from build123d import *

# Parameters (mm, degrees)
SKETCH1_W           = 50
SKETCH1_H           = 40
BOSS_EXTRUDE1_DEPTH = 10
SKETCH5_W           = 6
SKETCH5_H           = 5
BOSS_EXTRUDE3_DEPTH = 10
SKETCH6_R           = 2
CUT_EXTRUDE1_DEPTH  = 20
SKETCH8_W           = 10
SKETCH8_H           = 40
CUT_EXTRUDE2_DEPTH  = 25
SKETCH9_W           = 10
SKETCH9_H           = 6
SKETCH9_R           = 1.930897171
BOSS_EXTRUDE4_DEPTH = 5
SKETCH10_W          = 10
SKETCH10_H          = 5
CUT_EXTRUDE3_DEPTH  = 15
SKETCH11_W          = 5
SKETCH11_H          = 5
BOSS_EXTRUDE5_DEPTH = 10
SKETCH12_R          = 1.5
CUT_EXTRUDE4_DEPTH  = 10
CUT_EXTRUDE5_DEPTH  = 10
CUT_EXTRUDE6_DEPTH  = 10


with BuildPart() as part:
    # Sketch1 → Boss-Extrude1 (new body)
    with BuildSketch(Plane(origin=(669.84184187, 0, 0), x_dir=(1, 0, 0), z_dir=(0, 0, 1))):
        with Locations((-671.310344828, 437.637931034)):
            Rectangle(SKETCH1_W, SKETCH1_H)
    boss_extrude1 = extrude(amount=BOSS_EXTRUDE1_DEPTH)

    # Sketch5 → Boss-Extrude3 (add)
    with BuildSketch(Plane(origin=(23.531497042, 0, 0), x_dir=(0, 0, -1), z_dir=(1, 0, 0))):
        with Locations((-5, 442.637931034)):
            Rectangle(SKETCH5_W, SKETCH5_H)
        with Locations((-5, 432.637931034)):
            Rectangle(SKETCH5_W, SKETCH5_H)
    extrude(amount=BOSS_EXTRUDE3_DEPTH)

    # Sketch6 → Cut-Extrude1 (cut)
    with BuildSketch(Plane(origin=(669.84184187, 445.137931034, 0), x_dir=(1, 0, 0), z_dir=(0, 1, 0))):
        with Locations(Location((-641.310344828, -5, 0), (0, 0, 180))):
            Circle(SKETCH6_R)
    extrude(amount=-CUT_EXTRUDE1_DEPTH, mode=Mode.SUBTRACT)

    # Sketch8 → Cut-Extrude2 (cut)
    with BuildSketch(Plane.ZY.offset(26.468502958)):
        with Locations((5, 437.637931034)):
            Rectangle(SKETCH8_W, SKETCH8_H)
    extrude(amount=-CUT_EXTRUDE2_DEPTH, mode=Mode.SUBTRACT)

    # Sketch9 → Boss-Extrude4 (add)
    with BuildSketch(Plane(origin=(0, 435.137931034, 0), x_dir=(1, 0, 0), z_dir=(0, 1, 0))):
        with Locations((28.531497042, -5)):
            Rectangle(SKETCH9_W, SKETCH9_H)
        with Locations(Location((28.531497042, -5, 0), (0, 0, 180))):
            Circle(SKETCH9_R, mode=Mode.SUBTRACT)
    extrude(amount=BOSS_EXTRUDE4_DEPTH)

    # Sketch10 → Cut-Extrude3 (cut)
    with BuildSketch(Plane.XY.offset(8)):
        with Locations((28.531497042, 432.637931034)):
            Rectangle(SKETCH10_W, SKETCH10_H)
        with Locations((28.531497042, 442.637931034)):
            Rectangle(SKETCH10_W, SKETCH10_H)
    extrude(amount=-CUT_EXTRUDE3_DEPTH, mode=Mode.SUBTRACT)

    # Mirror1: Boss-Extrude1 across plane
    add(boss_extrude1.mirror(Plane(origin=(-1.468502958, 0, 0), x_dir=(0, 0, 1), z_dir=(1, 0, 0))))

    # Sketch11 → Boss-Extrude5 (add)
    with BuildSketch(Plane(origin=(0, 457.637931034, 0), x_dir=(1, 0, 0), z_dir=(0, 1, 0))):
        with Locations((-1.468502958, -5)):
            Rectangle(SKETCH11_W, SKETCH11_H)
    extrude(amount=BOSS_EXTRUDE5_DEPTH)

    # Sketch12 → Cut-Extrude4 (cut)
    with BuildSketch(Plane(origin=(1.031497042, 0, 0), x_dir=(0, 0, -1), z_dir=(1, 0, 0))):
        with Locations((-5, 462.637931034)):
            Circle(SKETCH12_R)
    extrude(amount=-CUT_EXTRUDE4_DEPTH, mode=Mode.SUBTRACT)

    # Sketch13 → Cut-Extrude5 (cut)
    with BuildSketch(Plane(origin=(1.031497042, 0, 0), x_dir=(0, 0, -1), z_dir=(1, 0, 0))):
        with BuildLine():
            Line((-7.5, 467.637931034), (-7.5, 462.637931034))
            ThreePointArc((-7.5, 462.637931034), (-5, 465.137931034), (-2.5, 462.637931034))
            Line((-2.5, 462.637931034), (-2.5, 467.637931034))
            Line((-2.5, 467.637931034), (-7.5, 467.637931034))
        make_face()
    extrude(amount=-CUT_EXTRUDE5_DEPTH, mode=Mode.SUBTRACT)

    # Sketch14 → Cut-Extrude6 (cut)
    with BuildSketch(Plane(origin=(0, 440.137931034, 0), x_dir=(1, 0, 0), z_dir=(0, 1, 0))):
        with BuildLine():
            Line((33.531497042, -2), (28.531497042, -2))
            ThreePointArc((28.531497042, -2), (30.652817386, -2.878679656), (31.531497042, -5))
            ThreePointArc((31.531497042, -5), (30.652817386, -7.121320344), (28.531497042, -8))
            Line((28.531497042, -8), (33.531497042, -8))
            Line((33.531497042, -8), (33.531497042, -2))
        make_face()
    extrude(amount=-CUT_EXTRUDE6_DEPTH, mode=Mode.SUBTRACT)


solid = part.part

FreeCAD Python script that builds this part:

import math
import FreeCAD as App
import Part
import Sketcher

V = App.Vector

doc = App.newDocument("Part")
body = doc.addObject("PartDesign::Body", "Body")

# Sketch on XY plane
sketch1 = body.newObject("Sketcher::SketchObject", "Sketch")
sketch1.AttachmentSupport = (doc.getObject("XY_Plane"), [""])
sketch1.MapMode = "FlatFace"
sketch1.addGeometry(Part.LineSegment(V(-26, 458, 0), V(-26, 418, 0)), False)
sketch1.addGeometry(Part.LineSegment(V(-26, 418, 0), V(24, 418, 0)), False)
sketch1.addGeometry(Part.LineSegment(V(24, 418, 0), V(24, 458, 0)), False)
sketch1.addGeometry(Part.LineSegment(V(24, 458, 0), V(-26, 458, 0)), False)
sketch1.addConstraint(Sketcher.Constraint("Coincident", 0, 2, 1, 1))
sketch1.addConstraint(Sketcher.Constraint("Coincident", 1, 2, 2, 1))
sketch1.addConstraint(Sketcher.Constraint("Coincident", 2, 2, 3, 1))
sketch1.addConstraint(Sketcher.Constraint("Coincident", 3, 2, 0, 1))
sketch1.addConstraint(Sketcher.Constraint("Vertical", 0))
sketch1.addConstraint(Sketcher.Constraint("Horizontal", 1))
sketch1.addConstraint(Sketcher.Constraint("Vertical", 2))
sketch1.addConstraint(Sketcher.Constraint("Horizontal", 3))
sketch1.addConstraint(Sketcher.Constraint("DistanceX", 1, 1, 1, 2, 50.0))
sketch1.addConstraint(Sketcher.Constraint("DistanceY", 0, 2, 0, 1, 40.0))
sketch1.addConstraint(Sketcher.Constraint("DistanceY", -1, 1, 0, 2, 417.637931))
sketch1.addConstraint(Sketcher.Constraint("DistanceX", 0, 2, -1, 1, 26.468503))
pad1 = body.newObject("PartDesign::Pad", "Pad")
pad1.Profile = sketch1
pad1.Length = 10

# Sketch on YZ plane
sketch2 = body.newObject("Sketcher::SketchObject", "Sketch001")
sketch2.AttachmentSupport = (doc.getObject("YZ_Plane"), [""])
sketch2.MapMode = "FlatFace"
sketch2.AttachmentOffset = App.Placement(V(0, 0, 23.531497), App.Rotation())
sketch2.addGeometry(Part.LineSegment(V(445, 8, 0), V(440, 8, 0)), False)
sketch2.addGeometry(Part.LineSegment(V(440, 8, 0), V(440, 2, 0)), False)
sketch2.addGeometry(Part.LineSegment(V(440, 2, 0), V(445, 2, 0)), False)
sketch2.addGeometry(Part.LineSegment(V(445, 2, 0), V(445, 8, 0)), False)
sketch2.addGeometry(Part.LineSegment(V(435, 8, 0), V(430, 8, 0)), False)
sketch2.addGeometry(Part.LineSegment(V(430, 8, 0), V(430, 2, 0)), False)
sketch2.addGeometry(Part.LineSegment(V(430, 2, 0), V(435, 2, 0)), False)
sketch2.addGeometry(Part.LineSegment(V(435, 2, 0), V(435, 8, 0)), False)
sketch2.addConstraint(Sketcher.Constraint("Coincident", 0, 2, 1, 1))
sketch2.addConstraint(Sketcher.Constraint("Coincident", 1, 2, 2, 1))
sketch2.addConstraint(Sketcher.Constraint("Coincident", 2, 2, 3, 1))
sketch2.addConstraint(Sketcher.Constraint("Coincident", 3, 2, 0, 1))
sketch2.addConstraint(Sketcher.Constraint("Coincident", 4, 2, 5, 1))
sketch2.addConstraint(Sketcher.Constraint("Coincident", 5, 2, 6, 1))
sketch2.addConstraint(Sketcher.Constraint("Coincident", 6, 2, 7, 1))
sketch2.addConstraint(Sketcher.Constraint("Coincident", 7, 2, 4, 1))
sketch2.addConstraint(Sketcher.Constraint("Horizontal", 0))
sketch2.addConstraint(Sketcher.Constraint("Vertical", 1))
sketch2.addConstraint(Sketcher.Constraint("Horizontal", 2))
sketch2.addConstraint(Sketcher.Constraint("Vertical", 3))
sketch2.addConstraint(Sketcher.Constraint("Horizontal", 4))
sketch2.addConstraint(Sketcher.Constraint("Vertical", 5))
sketch2.addConstraint(Sketcher.Constraint("Horizontal", 6))
sketch2.addConstraint(Sketcher.Constraint("Vertical", 7))
sketch2.addConstraint(Sketcher.Constraint("Horizontal", 3, 2, 4, 2))
sketch2.addConstraint(Sketcher.Constraint("Horizontal", 2, 2, 5, 2))
sketch2.addConstraint(Sketcher.Constraint("Equal", 2, 4))
sketch2.addConstraint(Sketcher.Constraint("DistanceX", 0, 2, 0, 1, 5.0))
sketch2.addConstraint(Sketcher.Constraint("DistanceY", 1, 2, 1, 1, 6.0))
sketch2.addConstraint(Sketcher.Constraint("DistanceY", -1, 1, 0, 2, 8.0))
sketch2.addConstraint(Sketcher.Constraint("DistanceX", 4, 2, 0, 2, 10.0))
sketch2.addConstraint(Sketcher.Constraint("DistanceX", -1, 1, 0, 2, 440.137931))
pad2 = body.newObject("PartDesign::Pad", "Pad001")
pad2.Profile = sketch2
pad2.Length = 10

# Sketch on XZ plane
sketch3 = body.newObject("Sketcher::SketchObject", "Sketch002")
sketch3.AttachmentSupport = (doc.getObject("XZ_Plane"), [""])
sketch3.MapMode = "FlatFace"
sketch3.AttachmentOffset = App.Placement(V(0, 0, -445.137931), App.Rotation())
sketch3.addGeometry(Part.Circle(V(28.5, 5, 0), V(0, 0, 1), 2), False)
sketch3.addConstraint(Sketcher.Constraint("Diameter", 0, 4.0))
sketch3.addConstraint(Sketcher.Constraint("DistanceY", -1, 1, 0, 3, 5.0))
sketch3.addConstraint(Sketcher.Constraint("DistanceX", -1, 1, 0, 3, 28.531497))
pocket1 = body.newObject("PartDesign::Pocket", "Pocket")
pocket1.Profile = sketch3
pocket1.Length = 20
pocket1.Reversed = True

# Sketch on YZ plane
sketch4 = body.newObject("Sketcher::SketchObject", "Sketch003")
sketch4.AttachmentSupport = (doc.getObject("YZ_Plane"), [""])
sketch4.MapMode = "FlatFace"
sketch4.AttachmentOffset = App.Placement(V(0, 0, -26.468503), App.Rotation())
sketch4.addGeometry(Part.LineSegment(V(458, 0, 0), V(418, 0, 0)), False)
sketch4.addGeometry(Part.LineSegment(V(418, 0, 0), V(418, 10, 0)), False)
sketch4.addGeometry(Part.LineSegment(V(418, 10, 0), V(458, 10, 0)), False)
sketch4.addGeometry(Part.LineSegment(V(458, 10, 0), V(458, 0, 0)), False)
sketch4.addConstraint(Sketcher.Constraint("Coincident", 0, 2, 1, 1))
sketch4.addConstraint(Sketcher.Constraint("Coincident", 1, 2, 2, 1))
sketch4.addConstraint(Sketcher.Constraint("Coincident", 2, 2, 3, 1))
sketch4.addConstraint(Sketcher.Constraint("Coincident", 3, 2, 0, 1))
sketch4.addConstraint(Sketcher.Constraint("Horizontal", 0))
sketch4.addConstraint(Sketcher.Constraint("Vertical", 1))
sketch4.addConstraint(Sketcher.Constraint("Horizontal", 2))
sketch4.addConstraint(Sketcher.Constraint("Vertical", 3))
sketch4.addConstraint(Sketcher.Constraint("PointOnObject", 0, 2, -1))
sketch4.addConstraint(Sketcher.Constraint("DistanceX", 0, 2, 0, 1, 40.0))
sketch4.addConstraint(Sketcher.Constraint("DistanceY", 1, 1, 1, 2, 10.0))
sketch4.addConstraint(Sketcher.Constraint("DistanceX", -1, 1, 0, 2, 417.637931))
pocket2 = body.newObject("PartDesign::Pocket", "Pocket001")
pocket2.Profile = sketch4
pocket2.Length = 25
pocket2.Reversed = True

# Sketch on XZ plane
sketch5 = body.newObject("Sketcher::SketchObject", "Sketch004")
sketch5.AttachmentSupport = (doc.getObject("XZ_Plane"), [""])
sketch5.MapMode = "FlatFace"
sketch5.AttachmentOffset = App.Placement(V(0, 0, -435.137931), App.Rotation())
sketch5.addGeometry(Part.LineSegment(V(23.5, 2, 0), V(23.5, 8, 0)), False)
sketch5.addGeometry(Part.LineSegment(V(23.5, 8, 0), V(33.5, 8, 0)), False)
sketch5.addGeometry(Part.LineSegment(V(33.5, 8, 0), V(33.5, 2, 0)), False)
sketch5.addGeometry(Part.LineSegment(V(33.5, 2, 0), V(23.5, 2, 0)), False)
sketch5.addGeometry(Part.Circle(V(28.5, 5, 0), V(0, 0, 1), 1.9), False)
sketch5.addConstraint(Sketcher.Constraint("Coincident", 0, 2, 1, 1))
sketch5.addConstraint(Sketcher.Constraint("Coincident", 1, 2, 2, 1))
sketch5.addConstraint(Sketcher.Constraint("Coincident", 2, 2, 3, 1))
sketch5.addConstraint(Sketcher.Constraint("Coincident", 3, 2, 0, 1))
sketch5.addConstraint(Sketcher.Constraint("Vertical", 0))
sketch5.addConstraint(Sketcher.Constraint("Horizontal", 1))
sketch5.addConstraint(Sketcher.Constraint("Vertical", 2))
sketch5.addConstraint(Sketcher.Constraint("Horizontal", 3))
sketch5.addConstraint(Sketcher.Constraint("DistanceX", 1, 1, 1, 2, 10.0))
sketch5.addConstraint(Sketcher.Constraint("DistanceY", 0, 1, 0, 2, 6.0))
sketch5.addConstraint(Sketcher.Constraint("DistanceY", -1, 1, 4, 3, 5.0))
sketch5.addConstraint(Sketcher.Constraint("DistanceY", -1, 1, 0, 2, 8.0))
sketch5.addConstraint(Sketcher.Constraint("DistanceX", 0, 2, 4, 3, 5.0))
sketch5.addConstraint(Sketcher.Constraint("Diameter", 4, 3.861794))
sketch5.addConstraint(Sketcher.Constraint("DistanceX", -1, 1, 4, 3, 28.531497))
pad3 = body.newObject("PartDesign::Pad", "Pad002")
pad3.Profile = sketch5
pad3.Length = 5
pad3.Reversed = True

# Sketch on XY plane
sketch6 = body.newObject("Sketcher::SketchObject", "Sketch005")
sketch6.AttachmentSupport = (doc.getObject("XY_Plane"), [""])
sketch6.MapMode = "FlatFace"
sketch6.AttachmentOffset = App.Placement(V(0, 0, 8), App.Rotation())
sketch6.addGeometry(Part.LineSegment(V(24, 435, 0), V(24, 430, 0)), False)
sketch6.addGeometry(Part.LineSegment(V(24, 430, 0), V(34, 430, 0)), False)
sketch6.addGeometry(Part.LineSegment(V(34, 430, 0), V(34, 435, 0)), False)
sketch6.addGeometry(Part.LineSegment(V(34, 435, 0), V(24, 435, 0)), False)
sketch6.addGeometry(Part.LineSegment(V(24, 445, 0), V(24, 440, 0)), False)
sketch6.addGeometry(Part.LineSegment(V(24, 440, 0), V(34, 440, 0)), False)
sketch6.addGeometry(Part.LineSegment(V(34, 440, 0), V(34, 445, 0)), False)
sketch6.addGeometry(Part.LineSegment(V(34, 445, 0), V(24, 445, 0)), False)
sketch6.addConstraint(Sketcher.Constraint("Coincident", 0, 2, 1, 1))
sketch6.addConstraint(Sketcher.Constraint("Coincident", 1, 2, 2, 1))
sketch6.addConstraint(Sketcher.Constraint("Coincident", 2, 2, 3, 1))
sketch6.addConstraint(Sketcher.Constraint("Coincident", 3, 2, 0, 1))
sketch6.addConstraint(Sketcher.Constraint("Coincident", 4, 2, 5, 1))
sketch6.addConstraint(Sketcher.Constraint("Coincident", 5, 2, 6, 1))
sketch6.addConstraint(Sketcher.Constraint("Coincident", 6, 2, 7, 1))
sketch6.addConstraint(Sketcher.Constraint("Coincident", 7, 2, 4, 1))
sketch6.addConstraint(Sketcher.Constraint("Vertical", 0))
sketch6.addConstraint(Sketcher.Constraint("Horizontal", 1))
sketch6.addConstraint(Sketcher.Constraint("Vertical", 2))
sketch6.addConstraint(Sketcher.Constraint("Horizontal", 3))
sketch6.addConstraint(Sketcher.Constraint("Vertical", 4))
sketch6.addConstraint(Sketcher.Constraint("Horizontal", 5))
sketch6.addConstraint(Sketcher.Constraint("Vertical", 6))
sketch6.addConstraint(Sketcher.Constraint("Horizontal", 7))
sketch6.addConstraint(Sketcher.Constraint("Vertical", 3, 2, 4, 2))
sketch6.addConstraint(Sketcher.Constraint("Vertical", 2, 2, 5, 2))
sketch6.addConstraint(Sketcher.Constraint("Equal", 2, 4))
sketch6.addConstraint(Sketcher.Constraint("DistanceX", 1, 1, 1, 2, 10.0))
sketch6.addConstraint(Sketcher.Constraint("DistanceY", 0, 2, 0, 1, 5.0))
sketch6.addConstraint(Sketcher.Constraint("DistanceY", 3, 2, 4, 2, 5.0))
sketch6.addConstraint(Sketcher.Constraint("DistanceY", -1, 1, 0, 2, 430.137931))
sketch6.addConstraint(Sketcher.Constraint("DistanceX", -1, 1, 0, 2, 23.531497))
pocket3 = body.newObject("PartDesign::Pocket", "Pocket002")
pocket3.Profile = sketch6
pocket3.Length = 15
doc.recompute()

datumplane = body.newObject("PartDesign::Plane", "DatumPlane")
datumplane.AttachmentSupport = (doc.getObject("YZ_Plane"), [""])
datumplane.MapMode = "FlatFace"
datumplane.AttachmentOffset = App.Placement(V(0, 0, -1.468503), App.Rotation())
mirrored = body.newObject("PartDesign::Mirrored", "Mirrored")
mirrored.Originals = [pad1]
mirrored.MirrorPlane = (datumplane, [""])
body.Tip = mirrored

# Sketch on XZ plane
sketch7 = body.newObject("Sketcher::SketchObject", "Sketch006")
sketch7.AttachmentSupport = (doc.getObject("XZ_Plane"), [""])
sketch7.MapMode = "FlatFace"
sketch7.AttachmentOffset = App.Placement(V(0, 0, -457.637931), App.Rotation())
sketch7.addGeometry(Part.LineSegment(V(-4, 2, 0), V(-4, 8, 0)), False)
sketch7.addGeometry(Part.LineSegment(V(-4, 8, 0), V(1, 8, 0)), False)
sketch7.addGeometry(Part.LineSegment(V(1, 8, 0), V(1, 2, 0)), False)
sketch7.addGeometry(Part.LineSegment(V(1, 2, 0), V(-4, 2, 0)), False)
sketch7.addConstraint(Sketcher.Constraint("Coincident", 0, 2, 1, 1))
sketch7.addConstraint(Sketcher.Constraint("Coincident", 1, 2, 2, 1))
sketch7.addConstraint(Sketcher.Constraint("Coincident", 2, 2, 3, 1))
sketch7.addConstraint(Sketcher.Constraint("Coincident", 3, 2, 0, 1))
sketch7.addConstraint(Sketcher.Constraint("Vertical", 0))
sketch7.addConstraint(Sketcher.Constraint("Horizontal", 1))
sketch7.addConstraint(Sketcher.Constraint("Vertical", 2))
sketch7.addConstraint(Sketcher.Constraint("Horizontal", 3))
sketch7.addConstraint(Sketcher.Constraint("Equal", 3, 0))
sketch7.addConstraint(Sketcher.Constraint("DistanceX", 1, 1, 1, 2, 5.0))
sketch7.addConstraint(Sketcher.Constraint("DistanceY", -1, 1, 0, 2, 7.5))
sketch7.addConstraint(Sketcher.Constraint("DistanceX", 0, 2, -1, 1, 3.968503))
pad4 = body.newObject("PartDesign::Pad", "Pad003")
pad4.Profile = sketch7
pad4.Length = 10
pad4.Reversed = True

# Sketch on YZ plane
sketch8 = body.newObject("Sketcher::SketchObject", "Sketch007")
sketch8.AttachmentSupport = (doc.getObject("YZ_Plane"), [""])
sketch8.MapMode = "FlatFace"
sketch8.AttachmentOffset = App.Placement(V(0, 0, 1.031497), App.Rotation())
sketch8.addGeometry(Part.Circle(V(462.6, 5, 0), V(0, 0, 1), 1.5), False)
sketch8.addConstraint(Sketcher.Constraint("Diameter", 0, 3.0))
sketch8.addConstraint(Sketcher.Constraint("DistanceY", -1, 1, 0, 3, 5.0))
sketch8.addConstraint(Sketcher.Constraint("DistanceX", -1, 1, 0, 3, 462.637931))
pocket4 = body.newObject("PartDesign::Pocket", "Pocket003")
pocket4.Profile = sketch8
pocket4.Length = 10

# Sketch on YZ plane
sketch9 = body.newObject("Sketcher::SketchObject", "Sketch008")
sketch9.AttachmentSupport = (doc.getObject("YZ_Plane"), [""])
sketch9.MapMode = "FlatFace"
sketch9.AttachmentOffset = App.Placement(V(0, 0, 1.031497), App.Rotation())
sketch9.addGeometry(Part.LineSegment(V(467.6, 7.5, 0), V(462.6, 7.5, 0)), False)
sketch9.addGeometry(Part.ArcOfCircle(Part.Circle(V(462.6, 5, 0), V(0, 0, 1), 2.5), math.radians(-90), math.radians(90)), False)
sketch9.addGeometry(Part.LineSegment(V(462.6, 2.5, 0), V(467.6, 2.5, 0)), False)
sketch9.addGeometry(Part.LineSegment(V(467.6, 2.5, 0), V(467.6, 7.5, 0)), False)
sketch9.addConstraint(Sketcher.Constraint("Tangent", 0, 2, 1, 2))
sketch9.addConstraint(Sketcher.Constraint("Tangent", 1, 1, 2, 1))
sketch9.addConstraint(Sketcher.Constraint("Coincident", 2, 2, 3, 1))
sketch9.addConstraint(Sketcher.Constraint("Coincident", 3, 2, 0, 1))
sketch9.addConstraint(Sketcher.Constraint("Horizontal", 0))
sketch9.addConstraint(Sketcher.Constraint("Horizontal", 2))
sketch9.addConstraint(Sketcher.Constraint("Vertical", 3))
sketch9.addConstraint(Sketcher.Constraint("Equal", 2, 3))
sketch9.addConstraint(Sketcher.Constraint("Radius", 1, 2.5))
sketch9.addConstraint(Sketcher.Constraint("DistanceY", -1, 1, 1, 3, 5.0))
sketch9.addConstraint(Sketcher.Constraint("DistanceX", -1, 1, 1, 3, 462.637931))
pocket5 = body.newObject("PartDesign::Pocket", "Pocket004")
pocket5.Profile = sketch9
pocket5.Length = 10

# Sketch on XZ plane
sketch10 = body.newObject("Sketcher::SketchObject", "Sketch009")
sketch10.AttachmentSupport = (doc.getObject("XZ_Plane"), [""])
sketch10.MapMode = "FlatFace"
sketch10.AttachmentOffset = App.Placement(V(0, 0, -440.137931), App.Rotation())
sketch10.addGeometry(Part.LineSegment(V(33.5, 2, 0), V(28.5, 2, 0)), False)
sketch10.addGeometry(Part.ArcOfCircle(Part.Circle(V(28.5, 5, 0), V(0, 0, 1), 3), math.radians(-90), math.radians(0)), False)
sketch10.addGeometry(Part.ArcOfCircle(Part.Circle(V(28.5, 5, 0), V(0, 0, 1), 3), math.radians(0), math.radians(90)), False)
sketch10.addGeometry(Part.LineSegment(V(28.5, 8, 0), V(33.5, 8, 0)), False)
sketch10.addGeometry(Part.LineSegment(V(33.5, 8, 0), V(33.5, 2, 0)), False)
sketch10.addConstraint(Sketcher.Constraint("Tangent", 0, 2, 1, 1))
sketch10.addConstraint(Sketcher.Constraint("Tangent", 1, 2, 2, 1))
sketch10.addConstraint(Sketcher.Constraint("Tangent", 2, 2, 3, 1))
sketch10.addConstraint(Sketcher.Constraint("Coincident", 3, 2, 4, 1))
sketch10.addConstraint(Sketcher.Constraint("Coincident", 4, 2, 0, 1))
sketch10.addConstraint(Sketcher.Constraint("Horizontal", 0))
sketch10.addConstraint(Sketcher.Constraint("Horizontal", 3))
sketch10.addConstraint(Sketcher.Constraint("Vertical", 4))
sketch10.addConstraint(Sketcher.Constraint("Equal", 1, 2))
sketch10.addConstraint(Sketcher.Constraint("Horizontal", 2, 3, 1, 2))
sketch10.addConstraint(Sketcher.Constraint("Radius", 1, 3.0))
sketch10.addConstraint(Sketcher.Constraint("DistanceX", 0, 2, 0, 1, 5.0))
sketch10.addConstraint(Sketcher.Constraint("DistanceY", -1, 1, 1, 3, 5.0))
sketch10.addConstraint(Sketcher.Constraint("DistanceX", -1, 1, 1, 3, 28.531497))
pocket6 = body.newObject("PartDesign::Pocket", "Pocket005")
pocket6.Profile = sketch10
pocket6.Length = 10
pocket6.Reversed = True

doc.recompute()
